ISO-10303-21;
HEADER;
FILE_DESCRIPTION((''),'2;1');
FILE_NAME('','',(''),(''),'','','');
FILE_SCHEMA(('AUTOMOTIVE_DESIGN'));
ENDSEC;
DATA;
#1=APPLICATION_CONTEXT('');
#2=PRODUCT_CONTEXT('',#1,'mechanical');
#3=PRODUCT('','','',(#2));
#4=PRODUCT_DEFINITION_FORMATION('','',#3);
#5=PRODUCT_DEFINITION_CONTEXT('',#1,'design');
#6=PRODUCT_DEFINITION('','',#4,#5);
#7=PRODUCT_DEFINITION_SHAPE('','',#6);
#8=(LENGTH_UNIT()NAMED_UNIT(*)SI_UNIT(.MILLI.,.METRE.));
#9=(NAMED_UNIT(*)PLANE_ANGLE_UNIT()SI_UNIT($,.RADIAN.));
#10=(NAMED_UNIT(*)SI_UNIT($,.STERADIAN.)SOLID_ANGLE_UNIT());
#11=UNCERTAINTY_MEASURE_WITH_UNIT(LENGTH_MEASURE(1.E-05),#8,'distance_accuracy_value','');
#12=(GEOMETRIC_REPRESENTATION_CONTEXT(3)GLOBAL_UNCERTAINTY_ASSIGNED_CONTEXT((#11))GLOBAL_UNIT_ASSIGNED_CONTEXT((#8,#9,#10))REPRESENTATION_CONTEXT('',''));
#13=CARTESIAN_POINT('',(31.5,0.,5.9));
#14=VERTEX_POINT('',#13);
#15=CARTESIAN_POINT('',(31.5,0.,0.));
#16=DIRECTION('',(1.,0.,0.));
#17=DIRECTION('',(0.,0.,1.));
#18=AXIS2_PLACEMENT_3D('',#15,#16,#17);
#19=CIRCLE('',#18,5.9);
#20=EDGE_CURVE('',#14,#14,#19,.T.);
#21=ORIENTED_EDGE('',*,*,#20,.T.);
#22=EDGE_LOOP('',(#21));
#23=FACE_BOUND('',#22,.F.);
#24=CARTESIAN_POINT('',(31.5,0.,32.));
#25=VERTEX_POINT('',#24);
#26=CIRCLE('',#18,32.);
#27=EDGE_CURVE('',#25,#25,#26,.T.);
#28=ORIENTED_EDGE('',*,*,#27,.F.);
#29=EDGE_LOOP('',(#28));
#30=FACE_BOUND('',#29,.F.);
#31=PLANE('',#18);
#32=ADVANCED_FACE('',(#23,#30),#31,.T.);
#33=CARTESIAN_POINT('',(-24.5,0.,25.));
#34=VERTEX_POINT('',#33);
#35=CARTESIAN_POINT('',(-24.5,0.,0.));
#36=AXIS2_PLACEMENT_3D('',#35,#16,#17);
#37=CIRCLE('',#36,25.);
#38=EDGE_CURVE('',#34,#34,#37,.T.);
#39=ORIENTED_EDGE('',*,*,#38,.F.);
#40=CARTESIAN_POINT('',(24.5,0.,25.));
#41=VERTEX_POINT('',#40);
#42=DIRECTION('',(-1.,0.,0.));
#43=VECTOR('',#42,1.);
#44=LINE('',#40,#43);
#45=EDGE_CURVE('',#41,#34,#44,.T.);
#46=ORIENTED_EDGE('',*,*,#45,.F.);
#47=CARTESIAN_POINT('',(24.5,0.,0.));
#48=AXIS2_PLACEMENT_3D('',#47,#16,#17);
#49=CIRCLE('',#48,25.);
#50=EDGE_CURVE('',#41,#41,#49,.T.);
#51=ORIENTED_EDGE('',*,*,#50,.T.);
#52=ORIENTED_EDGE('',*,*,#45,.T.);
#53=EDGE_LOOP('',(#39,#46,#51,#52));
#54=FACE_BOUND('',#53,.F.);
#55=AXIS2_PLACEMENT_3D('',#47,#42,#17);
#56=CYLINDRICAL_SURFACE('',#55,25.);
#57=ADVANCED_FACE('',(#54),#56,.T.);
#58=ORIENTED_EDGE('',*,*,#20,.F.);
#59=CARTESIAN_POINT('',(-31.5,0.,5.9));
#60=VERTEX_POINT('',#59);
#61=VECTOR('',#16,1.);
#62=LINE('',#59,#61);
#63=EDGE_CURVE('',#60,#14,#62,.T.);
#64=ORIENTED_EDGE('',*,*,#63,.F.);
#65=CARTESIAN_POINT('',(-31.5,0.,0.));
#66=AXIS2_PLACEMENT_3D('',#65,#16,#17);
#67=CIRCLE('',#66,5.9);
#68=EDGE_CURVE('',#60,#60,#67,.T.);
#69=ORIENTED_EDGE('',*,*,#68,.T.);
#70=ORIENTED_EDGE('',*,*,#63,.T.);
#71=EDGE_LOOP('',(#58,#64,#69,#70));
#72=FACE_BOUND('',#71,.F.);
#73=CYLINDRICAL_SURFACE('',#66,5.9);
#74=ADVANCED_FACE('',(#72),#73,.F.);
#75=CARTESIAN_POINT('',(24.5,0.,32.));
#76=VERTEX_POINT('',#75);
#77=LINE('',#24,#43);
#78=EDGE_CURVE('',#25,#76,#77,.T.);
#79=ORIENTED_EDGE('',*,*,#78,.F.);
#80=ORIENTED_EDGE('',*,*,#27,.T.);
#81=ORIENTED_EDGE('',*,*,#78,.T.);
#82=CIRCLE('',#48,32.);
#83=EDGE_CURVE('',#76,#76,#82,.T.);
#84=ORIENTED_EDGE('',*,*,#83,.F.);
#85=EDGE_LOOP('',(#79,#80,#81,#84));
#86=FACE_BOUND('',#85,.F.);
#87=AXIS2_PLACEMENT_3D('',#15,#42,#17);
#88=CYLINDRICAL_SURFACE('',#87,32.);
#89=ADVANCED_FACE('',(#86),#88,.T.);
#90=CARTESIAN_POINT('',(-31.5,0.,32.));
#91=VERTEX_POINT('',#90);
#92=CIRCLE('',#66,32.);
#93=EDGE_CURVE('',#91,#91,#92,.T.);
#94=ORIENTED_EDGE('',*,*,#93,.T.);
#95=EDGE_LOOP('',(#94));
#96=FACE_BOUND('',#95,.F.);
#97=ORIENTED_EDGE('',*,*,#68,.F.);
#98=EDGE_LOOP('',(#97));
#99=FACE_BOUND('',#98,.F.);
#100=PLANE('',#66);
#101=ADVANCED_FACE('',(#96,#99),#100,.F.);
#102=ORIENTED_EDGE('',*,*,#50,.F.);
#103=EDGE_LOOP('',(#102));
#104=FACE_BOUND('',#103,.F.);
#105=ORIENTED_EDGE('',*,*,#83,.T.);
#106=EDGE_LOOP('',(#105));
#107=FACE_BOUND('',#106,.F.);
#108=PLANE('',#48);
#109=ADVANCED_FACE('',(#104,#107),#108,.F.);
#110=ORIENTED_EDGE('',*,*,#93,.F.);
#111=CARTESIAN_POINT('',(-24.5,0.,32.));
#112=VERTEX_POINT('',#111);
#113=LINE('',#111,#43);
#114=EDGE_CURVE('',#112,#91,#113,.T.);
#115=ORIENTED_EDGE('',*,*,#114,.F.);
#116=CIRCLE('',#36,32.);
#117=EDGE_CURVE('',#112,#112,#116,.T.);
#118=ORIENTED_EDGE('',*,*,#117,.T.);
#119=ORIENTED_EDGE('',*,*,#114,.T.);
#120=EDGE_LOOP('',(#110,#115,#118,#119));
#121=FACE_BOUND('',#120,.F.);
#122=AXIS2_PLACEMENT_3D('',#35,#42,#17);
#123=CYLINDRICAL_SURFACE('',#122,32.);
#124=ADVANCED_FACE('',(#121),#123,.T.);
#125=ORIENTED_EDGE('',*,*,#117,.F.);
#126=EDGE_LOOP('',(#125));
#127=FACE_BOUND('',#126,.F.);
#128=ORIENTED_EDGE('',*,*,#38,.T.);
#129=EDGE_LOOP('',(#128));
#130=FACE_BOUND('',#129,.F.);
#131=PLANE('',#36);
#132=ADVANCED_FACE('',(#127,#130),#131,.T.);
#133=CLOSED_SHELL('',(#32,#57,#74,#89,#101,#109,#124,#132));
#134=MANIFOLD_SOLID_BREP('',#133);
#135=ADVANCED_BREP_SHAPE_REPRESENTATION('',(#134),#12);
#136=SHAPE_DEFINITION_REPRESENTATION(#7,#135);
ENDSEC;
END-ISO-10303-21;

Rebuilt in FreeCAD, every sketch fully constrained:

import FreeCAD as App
import Part
import Sketcher
from FreeCAD import Vector

doc = App.newDocument("Part")
body = doc.addObject("PartDesign::Body", "Body")

# Sketch on XZ plane
sketch1 = body.newObject("Sketcher::SketchObject", "Sketch")
sketch1.AttachmentSupport = (doc.getObject("XZ_Plane"), [""])
sketch1.MapMode = "FlatFace"
sketch1.addGeometry(Part.LineSegment(Vector(32, 6, 0), Vector(32, 32, 0)), False)
sketch1.addGeometry(Part.LineSegment(Vector(32, 32, 0), Vector(24, 32, 0)), False)
sketch1.addGeometry(Part.LineSegment(Vector(24, 32, 0), Vector(24, 25, 0)), False)
sketch1.addGeometry(Part.LineSegment(Vector(24, 25, 0), Vector(-24, 25, 0)), False)
sketch1.addGeometry(Part.LineSegment(Vector(-24, 25, 0), Vector(-24, 32, 0)), False)
sketch1.addGeometry(Part.LineSegment(Vector(-24, 32, 0), Vector(-32, 32, 0)), False)
sketch1.addGeometry(Part.LineSegment(Vector(-32, 32, 0), Vector(-32, 6, 0)), False)
sketch1.addGeometry(Part.LineSegment(Vector(-32, 6, 0), Vector(32, 6, 0)), False)
sketch1.addConstraint(Sketcher.Constraint("Coincident", 0, 2, 1, 1))
sketch1.addConstraint(Sketcher.Constraint("Coincident", 1, 2, 2, 1))
sketch1.addConstraint(Sketcher.Constraint("Coincident", 2, 2, 3, 1))
sketch1.addConstraint(Sketcher.Constraint("Coincident", 3, 2, 4, 1))
sketch1.addConstraint(Sketcher.Constraint("Coincident", 4, 2, 5, 1))
sketch1.addConstraint(Sketcher.Constraint("Coincident", 5, 2, 6, 1))
sketch1.addConstraint(Sketcher.Constraint("Coincident", 6, 2, 7, 1))
sketch1.addConstraint(Sketcher.Constraint("Coincident", 7, 2, 0, 1))
sketch1.addConstraint(Sketcher.Constraint("Vertical", 0))
sketch1.addConstraint(Sketcher.Constraint("Horizontal", 1))
sketch1.addConstraint(Sketcher.Constraint("Vertical", 2))
sketch1.addConstraint(Sketcher.Constraint("Horizontal", 3))
sketch1.addConstraint(Sketcher.Constraint("Vertical", 4))
sketch1.addConstraint(Sketcher.Constraint("Horizontal", 5))
sketch1.addConstraint(Sketcher.Constraint("Vertical", 6))
sketch1.addConstraint(Sketcher.Constraint("Horizontal", 7))
sketch1.addConstraint(Sketcher.Constraint("Symmetric", 1, 2, 4, 2, -2))
sketch1.addConstraint(Sketcher.Constraint("Equal", 1, 5))
sketch1.addConstraint(Sketcher.Constraint("Equal", 5, 2))
sketch1.addConstraint(Sketcher.Constraint("DistanceX", 1, 2, 1, 1, 7.0))
sketch1.addConstraint(Sketcher.Constraint("DistanceX", 3, 2, 3, 1, 49.0))
sketch1.addConstraint(Sketcher.Constraint("DistanceY", 0, 1, 0, 2, 26.1))
sketch1.addConstraint(Sketcher.Constraint("DistanceY", -1, 1, 0, 2, 32.0))
revolution = body.newObject("PartDesign::Revolution", "Revolution")
revolution.Profile = sketch1
revolution.ReferenceAxis = (sketch1, ["H_Axis"])
revolution.Angle = 360

doc.recompute()
